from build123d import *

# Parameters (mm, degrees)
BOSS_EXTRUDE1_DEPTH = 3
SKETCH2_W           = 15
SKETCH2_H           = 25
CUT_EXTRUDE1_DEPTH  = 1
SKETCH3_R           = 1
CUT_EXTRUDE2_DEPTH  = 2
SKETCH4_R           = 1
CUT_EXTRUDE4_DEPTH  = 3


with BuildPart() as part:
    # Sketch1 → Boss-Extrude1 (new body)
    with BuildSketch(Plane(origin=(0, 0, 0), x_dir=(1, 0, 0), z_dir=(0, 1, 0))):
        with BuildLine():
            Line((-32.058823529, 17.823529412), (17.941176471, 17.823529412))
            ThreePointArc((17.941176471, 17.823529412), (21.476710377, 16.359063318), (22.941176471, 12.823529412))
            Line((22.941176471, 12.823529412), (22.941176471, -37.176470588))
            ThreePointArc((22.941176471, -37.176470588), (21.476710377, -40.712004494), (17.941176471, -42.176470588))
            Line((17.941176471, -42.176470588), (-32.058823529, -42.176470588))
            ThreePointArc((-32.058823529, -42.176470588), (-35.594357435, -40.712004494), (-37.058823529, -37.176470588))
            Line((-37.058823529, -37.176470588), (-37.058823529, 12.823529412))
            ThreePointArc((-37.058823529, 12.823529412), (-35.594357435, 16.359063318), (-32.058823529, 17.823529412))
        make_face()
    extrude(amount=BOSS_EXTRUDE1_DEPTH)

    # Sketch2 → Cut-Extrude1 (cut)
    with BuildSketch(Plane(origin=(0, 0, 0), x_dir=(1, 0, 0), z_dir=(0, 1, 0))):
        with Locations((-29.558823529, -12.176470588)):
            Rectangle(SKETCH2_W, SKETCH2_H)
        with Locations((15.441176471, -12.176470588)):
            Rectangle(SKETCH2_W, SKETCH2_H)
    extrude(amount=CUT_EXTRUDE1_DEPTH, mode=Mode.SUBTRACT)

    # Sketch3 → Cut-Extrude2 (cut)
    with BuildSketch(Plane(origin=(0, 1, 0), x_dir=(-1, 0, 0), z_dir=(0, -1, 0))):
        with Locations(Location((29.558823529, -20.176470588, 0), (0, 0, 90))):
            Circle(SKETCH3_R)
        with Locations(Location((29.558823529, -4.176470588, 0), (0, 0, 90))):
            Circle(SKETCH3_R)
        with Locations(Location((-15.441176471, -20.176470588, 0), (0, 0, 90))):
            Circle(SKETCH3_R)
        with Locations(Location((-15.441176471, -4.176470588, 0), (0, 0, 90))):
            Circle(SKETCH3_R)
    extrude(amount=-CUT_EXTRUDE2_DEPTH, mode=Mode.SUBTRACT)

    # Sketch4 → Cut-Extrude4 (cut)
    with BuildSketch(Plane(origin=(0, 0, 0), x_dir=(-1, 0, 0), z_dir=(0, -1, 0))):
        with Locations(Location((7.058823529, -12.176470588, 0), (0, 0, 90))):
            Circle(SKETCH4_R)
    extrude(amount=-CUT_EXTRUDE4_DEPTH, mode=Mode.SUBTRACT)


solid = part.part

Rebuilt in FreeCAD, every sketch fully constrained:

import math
import FreeCAD as App
import Part
import Sketcher
from FreeCAD import Vector
Q = App.Units.Quantity


def add_polygon(sketch, points):
    """Adds a closed chain of lines whose ends are joined by coincident constraints."""
    first, n = sketch.GeometryCount, len(points)
    for a, b in zip(points, points[1:] + points[:1]):
        sketch.addGeometry(Part.LineSegment(App.Vector(*a, 0), App.Vector(*b, 0)), False)
    for i in range(n):
        sketch.addConstraint(Sketcher.Constraint("Coincident", first + i, 2, first + (i + 1) % n, 1))

doc = App.newDocument("Part")
params = doc.addObject("Spreadsheet::Sheet", "Params")
for row, (alias, value) in enumerate([
    ("sketch1_radius", "5 mm"),
    ("sketch1_width", "50 mm"),
    ("pad1_length", "3 mm"),
    ("sketch2_width", "15 mm"),
    ("sketch2_height", "25 mm"),
    ("pocket1_length", "1 mm"),
    ("sketch3_diameter", "2 mm"),
    ("pocket2_length", "2 mm"),
    ("sketch4_diameter", "2 mm"),
    ("pocket3_length", "3 mm"),
], start=1):
    params.set(f"A{row}", alias)
    params.set(f"B{row}", "=" + value)
    params.setAlias(f"B{row}", alias)

body = doc.addObject("PartDesign::Body", "Body")

# Sketch on XZ plane
sketch1 = body.newObject("Sketcher::SketchObject", "Sketch")
sketch1.AttachmentSupport = (doc.getObject("XZ_Plane"), [""])
sketch1.MapMode = "FlatFace"
sketch1.addGeometry([
    Part.LineSegment(Vector(18, -18, 0), Vector(-32, -18, 0)),  # 0
    Part.ArcOfCircle(Part.Circle(Vector(-32, -13, 0), Vector(0, 0, 1), 5), math.radians(180), math.radians(270)),  # 1
    Part.LineSegment(Vector(-37, -13, 0), Vector(-37, 37, 0)),  # 2
    Part.ArcOfCircle(Part.Circle(Vector(-32, 37, 0), Vector(0, 0, 1), 5), math.radians(90), math.radians(180)),  # 3
    Part.LineSegment(Vector(-32, 42, 0), Vector(18, 42, 0)),  # 4
    Part.ArcOfCircle(Part.Circle(Vector(18, 37, 0), Vector(0, 0, 1), 5), math.radians(0), math.radians(90)),  # 5
    Part.LineSegment(Vector(23, 37, 0), Vector(23, -13, 0)),  # 6
    Part.ArcOfCircle(Part.Circle(Vector(18, -13, 0), Vector(0, 0, 1), 5), math.radians(-90), math.radians(0)),  # 7
], False)
sketch1.addConstraint([
    Sketcher.Constraint("Tangent", 0, 2, 1, 2),
    Sketcher.Constraint("Tangent", 1, 1, 2, 1),
    Sketcher.Constraint("Tangent", 2, 2, 3, 2),
    Sketcher.Constraint("Tangent", 3, 1, 4, 1),
    Sketcher.Constraint("Tangent", 4, 2, 5, 2),
    Sketcher.Constraint("Tangent", 5, 1, 6, 1),
    Sketcher.Constraint("Tangent", 6, 2, 7, 2),
    Sketcher.Constraint("Tangent", 7, 1, 0, 1),
    Sketcher.Constraint("Horizontal", 0),
    Sketcher.Constraint("Vertical", 2),
    Sketcher.Constraint("Horizontal", 4),
    Sketcher.Constraint("Vertical", 6),
    Sketcher.Constraint("Equal", 1, 3),
    Sketcher.Constraint("Equal", 3, 5),
    Sketcher.Constraint("Equal", 5, 7),
    Sketcher.Constraint("Equal", 4, 2),
    Sketcher.Constraint("Radius", 1, Q("5 mm")),
    Sketcher.Constraint("DistanceX", 0, 2, 0, 1, Q("50 mm")),
    Sketcher.Constraint("DistanceY", 1, 3, -1, 1, Q("12.823529 mm")),
    Sketcher.Constraint("DistanceX", 1, 3, -1, 1, Q("32.058824 mm")),
])
sketch1.setExpression("Constraints[16]", "Params.sketch1_radius")
sketch1.setExpression("Constraints[17]", "Params.sketch1_width")
pad1 = body.newObject("PartDesign::Pad", "Pad")
pad1.Profile = sketch1
pad1.setExpression("Length", "Params.pad1_length")
pad1.Reversed = True

# Sketch on XZ plane
sketch2 = body.newObject("Sketcher::SketchObject", "Sketch001")
sketch2.AttachmentSupport = (doc.getObject("XZ_Plane"), [""])
sketch2.MapMode = "FlatFace"
add_polygon(sketch2, [(-37, 0), (-37, 25), (-22, 25), (-22, 0)])  # lines 0-3
add_polygon(sketch2, [(8, 0), (8, 25), (23, 25), (23, 0)])  # lines 4-7
sketch2.addConstraint([
    Sketcher.Constraint("Vertical", 0),
    Sketcher.Constraint("Horizontal", 1),
    Sketcher.Constraint("Vertical", 2),
    Sketcher.Constraint("Horizontal", 3),
    Sketcher.Constraint("Vertical", 4),
    Sketcher.Constraint("Horizontal", 5),
    Sketcher.Constraint("Vertical", 6),
    Sketcher.Constraint("Horizontal", 7),
    Sketcher.Constraint("Horizontal", 1, 2, 4, 2),
    Sketcher.Constraint("Horizontal", 3, 2, 6, 2),
    Sketcher.Constraint("Equal", 3, 5),
    Sketcher.Constraint("DistanceX", 1, 1, 1, 2, Q("15 mm")),
    Sketcher.Constraint("DistanceY", 0, 1, 0, 2, Q("25 mm")),
    Sketcher.Constraint("DistanceX", 1, 2, 4, 2, Q("30 mm")),
    Sketcher.Constraint("DistanceY", -1, 1, 0, 2, Q("24.676471 mm")),
    Sketcher.Constraint("DistanceX", 0, 2, -1, 1, Q("37.058824 mm")),
])
sketch2.setExpression("Constraints[19]", "Params.sketch2_width")
sketch2.setExpression("Constraints[20]", "Params.sketch2_height")
pocket1 = body.newObject("PartDesign::Pocket", "Pocket")
pocket1.Profile = sketch2
pocket1.setExpression("Length", "Params.pocket1_length")

# Sketch on XZ plane
sketch3 = body.newObject("Sketcher::SketchObject", "Sketch002")
sketch3.AttachmentSupport = (doc.getObject("XZ_Plane"), [""])
sketch3.MapMode = "FlatFace"
sketch3.AttachmentOffset = App.Placement(Vector(0, 0, -1), App.Rotation())
sketch3.addGeometry([
    Part.Circle(Vector(-29.6, 20.2, 0), Vector(0, 0, 1), 1),
    Part.Circle(Vector(-29.6, 4.2, 0), Vector(0, 0, 1), 1),
    Part.Circle(Vector(15.4, 20.2, 0), Vector(0, 0, 1), 1),
    Part.Circle(Vector(15.4, 4.2, 0), Vector(0, 0, 1), 1),
], False)
sketch3.addConstraint([
    Sketcher.Constraint("Equal", 0, 1),
    Sketcher.Constraint("Equal", 1, 2),
    Sketcher.Constraint("Equal", 2, 3),
    Sketcher.Constraint("Horizontal", 0, 3, 2, 3),
    Sketcher.Constraint("Horizontal", 1, 3, 3, 3),
    Sketcher.Constraint("Vertical", 0, 3, 1, 3),
    Sketcher.Constraint("Vertical", 2, 3, 3, 3),
    Sketcher.Constraint("Diameter", 0, Q("2 mm")),
    Sketcher.Constraint("DistanceY", 1, 3, 0, 3, Q("16 mm")),
    Sketcher.Constraint("DistanceX", 0, 3, 2, 3, Q("45 mm")),
    Sketcher.Constraint("DistanceY", -1, 1, 0, 3, Q("20.176471 mm")),
    Sketcher.Constraint("DistanceX", 0, 3, -1, 1, Q("29.558824 mm")),
])
sketch3.setExpression("Constraints[7]", "Params.sketch3_diameter")
pocket2 = body.newObject("PartDesign::Pocket", "Pocket001")
pocket2.Profile = sketch3
pocket2.setExpression("Length", "Params.pocket2_length")

# Sketch on XZ plane
sketch4 = body.newObject("Sketcher::SketchObject", "Sketch003")
sketch4.AttachmentSupport = (doc.getObject("XZ_Plane"), [""])
sketch4.MapMode = "FlatFace"
sketch4.addGeometry(Part.Circle(Vector(-7.1, 12.2, 0), Vector(0, 0, 1), 1), False)
sketch4.addConstraint([
    Sketcher.Constraint("Diameter", 0, Q("2 mm")),
    Sketcher.Constraint("DistanceY", -1, 1, 0, 3, Q("12.176471 mm")),
    Sketcher.Constraint("DistanceX", 0, 3, -1, 1, Q("7.058824 mm")),
])
sketch4.setExpression("Constraints[0]", "Params.sketch4_diameter")
pocket3 = body.newObject("PartDesign::Pocket", "Pocket002")
pocket3.Profile = sketch4
pocket3.setExpression("Length", "Params.pocket3_length")

doc.recompute()
